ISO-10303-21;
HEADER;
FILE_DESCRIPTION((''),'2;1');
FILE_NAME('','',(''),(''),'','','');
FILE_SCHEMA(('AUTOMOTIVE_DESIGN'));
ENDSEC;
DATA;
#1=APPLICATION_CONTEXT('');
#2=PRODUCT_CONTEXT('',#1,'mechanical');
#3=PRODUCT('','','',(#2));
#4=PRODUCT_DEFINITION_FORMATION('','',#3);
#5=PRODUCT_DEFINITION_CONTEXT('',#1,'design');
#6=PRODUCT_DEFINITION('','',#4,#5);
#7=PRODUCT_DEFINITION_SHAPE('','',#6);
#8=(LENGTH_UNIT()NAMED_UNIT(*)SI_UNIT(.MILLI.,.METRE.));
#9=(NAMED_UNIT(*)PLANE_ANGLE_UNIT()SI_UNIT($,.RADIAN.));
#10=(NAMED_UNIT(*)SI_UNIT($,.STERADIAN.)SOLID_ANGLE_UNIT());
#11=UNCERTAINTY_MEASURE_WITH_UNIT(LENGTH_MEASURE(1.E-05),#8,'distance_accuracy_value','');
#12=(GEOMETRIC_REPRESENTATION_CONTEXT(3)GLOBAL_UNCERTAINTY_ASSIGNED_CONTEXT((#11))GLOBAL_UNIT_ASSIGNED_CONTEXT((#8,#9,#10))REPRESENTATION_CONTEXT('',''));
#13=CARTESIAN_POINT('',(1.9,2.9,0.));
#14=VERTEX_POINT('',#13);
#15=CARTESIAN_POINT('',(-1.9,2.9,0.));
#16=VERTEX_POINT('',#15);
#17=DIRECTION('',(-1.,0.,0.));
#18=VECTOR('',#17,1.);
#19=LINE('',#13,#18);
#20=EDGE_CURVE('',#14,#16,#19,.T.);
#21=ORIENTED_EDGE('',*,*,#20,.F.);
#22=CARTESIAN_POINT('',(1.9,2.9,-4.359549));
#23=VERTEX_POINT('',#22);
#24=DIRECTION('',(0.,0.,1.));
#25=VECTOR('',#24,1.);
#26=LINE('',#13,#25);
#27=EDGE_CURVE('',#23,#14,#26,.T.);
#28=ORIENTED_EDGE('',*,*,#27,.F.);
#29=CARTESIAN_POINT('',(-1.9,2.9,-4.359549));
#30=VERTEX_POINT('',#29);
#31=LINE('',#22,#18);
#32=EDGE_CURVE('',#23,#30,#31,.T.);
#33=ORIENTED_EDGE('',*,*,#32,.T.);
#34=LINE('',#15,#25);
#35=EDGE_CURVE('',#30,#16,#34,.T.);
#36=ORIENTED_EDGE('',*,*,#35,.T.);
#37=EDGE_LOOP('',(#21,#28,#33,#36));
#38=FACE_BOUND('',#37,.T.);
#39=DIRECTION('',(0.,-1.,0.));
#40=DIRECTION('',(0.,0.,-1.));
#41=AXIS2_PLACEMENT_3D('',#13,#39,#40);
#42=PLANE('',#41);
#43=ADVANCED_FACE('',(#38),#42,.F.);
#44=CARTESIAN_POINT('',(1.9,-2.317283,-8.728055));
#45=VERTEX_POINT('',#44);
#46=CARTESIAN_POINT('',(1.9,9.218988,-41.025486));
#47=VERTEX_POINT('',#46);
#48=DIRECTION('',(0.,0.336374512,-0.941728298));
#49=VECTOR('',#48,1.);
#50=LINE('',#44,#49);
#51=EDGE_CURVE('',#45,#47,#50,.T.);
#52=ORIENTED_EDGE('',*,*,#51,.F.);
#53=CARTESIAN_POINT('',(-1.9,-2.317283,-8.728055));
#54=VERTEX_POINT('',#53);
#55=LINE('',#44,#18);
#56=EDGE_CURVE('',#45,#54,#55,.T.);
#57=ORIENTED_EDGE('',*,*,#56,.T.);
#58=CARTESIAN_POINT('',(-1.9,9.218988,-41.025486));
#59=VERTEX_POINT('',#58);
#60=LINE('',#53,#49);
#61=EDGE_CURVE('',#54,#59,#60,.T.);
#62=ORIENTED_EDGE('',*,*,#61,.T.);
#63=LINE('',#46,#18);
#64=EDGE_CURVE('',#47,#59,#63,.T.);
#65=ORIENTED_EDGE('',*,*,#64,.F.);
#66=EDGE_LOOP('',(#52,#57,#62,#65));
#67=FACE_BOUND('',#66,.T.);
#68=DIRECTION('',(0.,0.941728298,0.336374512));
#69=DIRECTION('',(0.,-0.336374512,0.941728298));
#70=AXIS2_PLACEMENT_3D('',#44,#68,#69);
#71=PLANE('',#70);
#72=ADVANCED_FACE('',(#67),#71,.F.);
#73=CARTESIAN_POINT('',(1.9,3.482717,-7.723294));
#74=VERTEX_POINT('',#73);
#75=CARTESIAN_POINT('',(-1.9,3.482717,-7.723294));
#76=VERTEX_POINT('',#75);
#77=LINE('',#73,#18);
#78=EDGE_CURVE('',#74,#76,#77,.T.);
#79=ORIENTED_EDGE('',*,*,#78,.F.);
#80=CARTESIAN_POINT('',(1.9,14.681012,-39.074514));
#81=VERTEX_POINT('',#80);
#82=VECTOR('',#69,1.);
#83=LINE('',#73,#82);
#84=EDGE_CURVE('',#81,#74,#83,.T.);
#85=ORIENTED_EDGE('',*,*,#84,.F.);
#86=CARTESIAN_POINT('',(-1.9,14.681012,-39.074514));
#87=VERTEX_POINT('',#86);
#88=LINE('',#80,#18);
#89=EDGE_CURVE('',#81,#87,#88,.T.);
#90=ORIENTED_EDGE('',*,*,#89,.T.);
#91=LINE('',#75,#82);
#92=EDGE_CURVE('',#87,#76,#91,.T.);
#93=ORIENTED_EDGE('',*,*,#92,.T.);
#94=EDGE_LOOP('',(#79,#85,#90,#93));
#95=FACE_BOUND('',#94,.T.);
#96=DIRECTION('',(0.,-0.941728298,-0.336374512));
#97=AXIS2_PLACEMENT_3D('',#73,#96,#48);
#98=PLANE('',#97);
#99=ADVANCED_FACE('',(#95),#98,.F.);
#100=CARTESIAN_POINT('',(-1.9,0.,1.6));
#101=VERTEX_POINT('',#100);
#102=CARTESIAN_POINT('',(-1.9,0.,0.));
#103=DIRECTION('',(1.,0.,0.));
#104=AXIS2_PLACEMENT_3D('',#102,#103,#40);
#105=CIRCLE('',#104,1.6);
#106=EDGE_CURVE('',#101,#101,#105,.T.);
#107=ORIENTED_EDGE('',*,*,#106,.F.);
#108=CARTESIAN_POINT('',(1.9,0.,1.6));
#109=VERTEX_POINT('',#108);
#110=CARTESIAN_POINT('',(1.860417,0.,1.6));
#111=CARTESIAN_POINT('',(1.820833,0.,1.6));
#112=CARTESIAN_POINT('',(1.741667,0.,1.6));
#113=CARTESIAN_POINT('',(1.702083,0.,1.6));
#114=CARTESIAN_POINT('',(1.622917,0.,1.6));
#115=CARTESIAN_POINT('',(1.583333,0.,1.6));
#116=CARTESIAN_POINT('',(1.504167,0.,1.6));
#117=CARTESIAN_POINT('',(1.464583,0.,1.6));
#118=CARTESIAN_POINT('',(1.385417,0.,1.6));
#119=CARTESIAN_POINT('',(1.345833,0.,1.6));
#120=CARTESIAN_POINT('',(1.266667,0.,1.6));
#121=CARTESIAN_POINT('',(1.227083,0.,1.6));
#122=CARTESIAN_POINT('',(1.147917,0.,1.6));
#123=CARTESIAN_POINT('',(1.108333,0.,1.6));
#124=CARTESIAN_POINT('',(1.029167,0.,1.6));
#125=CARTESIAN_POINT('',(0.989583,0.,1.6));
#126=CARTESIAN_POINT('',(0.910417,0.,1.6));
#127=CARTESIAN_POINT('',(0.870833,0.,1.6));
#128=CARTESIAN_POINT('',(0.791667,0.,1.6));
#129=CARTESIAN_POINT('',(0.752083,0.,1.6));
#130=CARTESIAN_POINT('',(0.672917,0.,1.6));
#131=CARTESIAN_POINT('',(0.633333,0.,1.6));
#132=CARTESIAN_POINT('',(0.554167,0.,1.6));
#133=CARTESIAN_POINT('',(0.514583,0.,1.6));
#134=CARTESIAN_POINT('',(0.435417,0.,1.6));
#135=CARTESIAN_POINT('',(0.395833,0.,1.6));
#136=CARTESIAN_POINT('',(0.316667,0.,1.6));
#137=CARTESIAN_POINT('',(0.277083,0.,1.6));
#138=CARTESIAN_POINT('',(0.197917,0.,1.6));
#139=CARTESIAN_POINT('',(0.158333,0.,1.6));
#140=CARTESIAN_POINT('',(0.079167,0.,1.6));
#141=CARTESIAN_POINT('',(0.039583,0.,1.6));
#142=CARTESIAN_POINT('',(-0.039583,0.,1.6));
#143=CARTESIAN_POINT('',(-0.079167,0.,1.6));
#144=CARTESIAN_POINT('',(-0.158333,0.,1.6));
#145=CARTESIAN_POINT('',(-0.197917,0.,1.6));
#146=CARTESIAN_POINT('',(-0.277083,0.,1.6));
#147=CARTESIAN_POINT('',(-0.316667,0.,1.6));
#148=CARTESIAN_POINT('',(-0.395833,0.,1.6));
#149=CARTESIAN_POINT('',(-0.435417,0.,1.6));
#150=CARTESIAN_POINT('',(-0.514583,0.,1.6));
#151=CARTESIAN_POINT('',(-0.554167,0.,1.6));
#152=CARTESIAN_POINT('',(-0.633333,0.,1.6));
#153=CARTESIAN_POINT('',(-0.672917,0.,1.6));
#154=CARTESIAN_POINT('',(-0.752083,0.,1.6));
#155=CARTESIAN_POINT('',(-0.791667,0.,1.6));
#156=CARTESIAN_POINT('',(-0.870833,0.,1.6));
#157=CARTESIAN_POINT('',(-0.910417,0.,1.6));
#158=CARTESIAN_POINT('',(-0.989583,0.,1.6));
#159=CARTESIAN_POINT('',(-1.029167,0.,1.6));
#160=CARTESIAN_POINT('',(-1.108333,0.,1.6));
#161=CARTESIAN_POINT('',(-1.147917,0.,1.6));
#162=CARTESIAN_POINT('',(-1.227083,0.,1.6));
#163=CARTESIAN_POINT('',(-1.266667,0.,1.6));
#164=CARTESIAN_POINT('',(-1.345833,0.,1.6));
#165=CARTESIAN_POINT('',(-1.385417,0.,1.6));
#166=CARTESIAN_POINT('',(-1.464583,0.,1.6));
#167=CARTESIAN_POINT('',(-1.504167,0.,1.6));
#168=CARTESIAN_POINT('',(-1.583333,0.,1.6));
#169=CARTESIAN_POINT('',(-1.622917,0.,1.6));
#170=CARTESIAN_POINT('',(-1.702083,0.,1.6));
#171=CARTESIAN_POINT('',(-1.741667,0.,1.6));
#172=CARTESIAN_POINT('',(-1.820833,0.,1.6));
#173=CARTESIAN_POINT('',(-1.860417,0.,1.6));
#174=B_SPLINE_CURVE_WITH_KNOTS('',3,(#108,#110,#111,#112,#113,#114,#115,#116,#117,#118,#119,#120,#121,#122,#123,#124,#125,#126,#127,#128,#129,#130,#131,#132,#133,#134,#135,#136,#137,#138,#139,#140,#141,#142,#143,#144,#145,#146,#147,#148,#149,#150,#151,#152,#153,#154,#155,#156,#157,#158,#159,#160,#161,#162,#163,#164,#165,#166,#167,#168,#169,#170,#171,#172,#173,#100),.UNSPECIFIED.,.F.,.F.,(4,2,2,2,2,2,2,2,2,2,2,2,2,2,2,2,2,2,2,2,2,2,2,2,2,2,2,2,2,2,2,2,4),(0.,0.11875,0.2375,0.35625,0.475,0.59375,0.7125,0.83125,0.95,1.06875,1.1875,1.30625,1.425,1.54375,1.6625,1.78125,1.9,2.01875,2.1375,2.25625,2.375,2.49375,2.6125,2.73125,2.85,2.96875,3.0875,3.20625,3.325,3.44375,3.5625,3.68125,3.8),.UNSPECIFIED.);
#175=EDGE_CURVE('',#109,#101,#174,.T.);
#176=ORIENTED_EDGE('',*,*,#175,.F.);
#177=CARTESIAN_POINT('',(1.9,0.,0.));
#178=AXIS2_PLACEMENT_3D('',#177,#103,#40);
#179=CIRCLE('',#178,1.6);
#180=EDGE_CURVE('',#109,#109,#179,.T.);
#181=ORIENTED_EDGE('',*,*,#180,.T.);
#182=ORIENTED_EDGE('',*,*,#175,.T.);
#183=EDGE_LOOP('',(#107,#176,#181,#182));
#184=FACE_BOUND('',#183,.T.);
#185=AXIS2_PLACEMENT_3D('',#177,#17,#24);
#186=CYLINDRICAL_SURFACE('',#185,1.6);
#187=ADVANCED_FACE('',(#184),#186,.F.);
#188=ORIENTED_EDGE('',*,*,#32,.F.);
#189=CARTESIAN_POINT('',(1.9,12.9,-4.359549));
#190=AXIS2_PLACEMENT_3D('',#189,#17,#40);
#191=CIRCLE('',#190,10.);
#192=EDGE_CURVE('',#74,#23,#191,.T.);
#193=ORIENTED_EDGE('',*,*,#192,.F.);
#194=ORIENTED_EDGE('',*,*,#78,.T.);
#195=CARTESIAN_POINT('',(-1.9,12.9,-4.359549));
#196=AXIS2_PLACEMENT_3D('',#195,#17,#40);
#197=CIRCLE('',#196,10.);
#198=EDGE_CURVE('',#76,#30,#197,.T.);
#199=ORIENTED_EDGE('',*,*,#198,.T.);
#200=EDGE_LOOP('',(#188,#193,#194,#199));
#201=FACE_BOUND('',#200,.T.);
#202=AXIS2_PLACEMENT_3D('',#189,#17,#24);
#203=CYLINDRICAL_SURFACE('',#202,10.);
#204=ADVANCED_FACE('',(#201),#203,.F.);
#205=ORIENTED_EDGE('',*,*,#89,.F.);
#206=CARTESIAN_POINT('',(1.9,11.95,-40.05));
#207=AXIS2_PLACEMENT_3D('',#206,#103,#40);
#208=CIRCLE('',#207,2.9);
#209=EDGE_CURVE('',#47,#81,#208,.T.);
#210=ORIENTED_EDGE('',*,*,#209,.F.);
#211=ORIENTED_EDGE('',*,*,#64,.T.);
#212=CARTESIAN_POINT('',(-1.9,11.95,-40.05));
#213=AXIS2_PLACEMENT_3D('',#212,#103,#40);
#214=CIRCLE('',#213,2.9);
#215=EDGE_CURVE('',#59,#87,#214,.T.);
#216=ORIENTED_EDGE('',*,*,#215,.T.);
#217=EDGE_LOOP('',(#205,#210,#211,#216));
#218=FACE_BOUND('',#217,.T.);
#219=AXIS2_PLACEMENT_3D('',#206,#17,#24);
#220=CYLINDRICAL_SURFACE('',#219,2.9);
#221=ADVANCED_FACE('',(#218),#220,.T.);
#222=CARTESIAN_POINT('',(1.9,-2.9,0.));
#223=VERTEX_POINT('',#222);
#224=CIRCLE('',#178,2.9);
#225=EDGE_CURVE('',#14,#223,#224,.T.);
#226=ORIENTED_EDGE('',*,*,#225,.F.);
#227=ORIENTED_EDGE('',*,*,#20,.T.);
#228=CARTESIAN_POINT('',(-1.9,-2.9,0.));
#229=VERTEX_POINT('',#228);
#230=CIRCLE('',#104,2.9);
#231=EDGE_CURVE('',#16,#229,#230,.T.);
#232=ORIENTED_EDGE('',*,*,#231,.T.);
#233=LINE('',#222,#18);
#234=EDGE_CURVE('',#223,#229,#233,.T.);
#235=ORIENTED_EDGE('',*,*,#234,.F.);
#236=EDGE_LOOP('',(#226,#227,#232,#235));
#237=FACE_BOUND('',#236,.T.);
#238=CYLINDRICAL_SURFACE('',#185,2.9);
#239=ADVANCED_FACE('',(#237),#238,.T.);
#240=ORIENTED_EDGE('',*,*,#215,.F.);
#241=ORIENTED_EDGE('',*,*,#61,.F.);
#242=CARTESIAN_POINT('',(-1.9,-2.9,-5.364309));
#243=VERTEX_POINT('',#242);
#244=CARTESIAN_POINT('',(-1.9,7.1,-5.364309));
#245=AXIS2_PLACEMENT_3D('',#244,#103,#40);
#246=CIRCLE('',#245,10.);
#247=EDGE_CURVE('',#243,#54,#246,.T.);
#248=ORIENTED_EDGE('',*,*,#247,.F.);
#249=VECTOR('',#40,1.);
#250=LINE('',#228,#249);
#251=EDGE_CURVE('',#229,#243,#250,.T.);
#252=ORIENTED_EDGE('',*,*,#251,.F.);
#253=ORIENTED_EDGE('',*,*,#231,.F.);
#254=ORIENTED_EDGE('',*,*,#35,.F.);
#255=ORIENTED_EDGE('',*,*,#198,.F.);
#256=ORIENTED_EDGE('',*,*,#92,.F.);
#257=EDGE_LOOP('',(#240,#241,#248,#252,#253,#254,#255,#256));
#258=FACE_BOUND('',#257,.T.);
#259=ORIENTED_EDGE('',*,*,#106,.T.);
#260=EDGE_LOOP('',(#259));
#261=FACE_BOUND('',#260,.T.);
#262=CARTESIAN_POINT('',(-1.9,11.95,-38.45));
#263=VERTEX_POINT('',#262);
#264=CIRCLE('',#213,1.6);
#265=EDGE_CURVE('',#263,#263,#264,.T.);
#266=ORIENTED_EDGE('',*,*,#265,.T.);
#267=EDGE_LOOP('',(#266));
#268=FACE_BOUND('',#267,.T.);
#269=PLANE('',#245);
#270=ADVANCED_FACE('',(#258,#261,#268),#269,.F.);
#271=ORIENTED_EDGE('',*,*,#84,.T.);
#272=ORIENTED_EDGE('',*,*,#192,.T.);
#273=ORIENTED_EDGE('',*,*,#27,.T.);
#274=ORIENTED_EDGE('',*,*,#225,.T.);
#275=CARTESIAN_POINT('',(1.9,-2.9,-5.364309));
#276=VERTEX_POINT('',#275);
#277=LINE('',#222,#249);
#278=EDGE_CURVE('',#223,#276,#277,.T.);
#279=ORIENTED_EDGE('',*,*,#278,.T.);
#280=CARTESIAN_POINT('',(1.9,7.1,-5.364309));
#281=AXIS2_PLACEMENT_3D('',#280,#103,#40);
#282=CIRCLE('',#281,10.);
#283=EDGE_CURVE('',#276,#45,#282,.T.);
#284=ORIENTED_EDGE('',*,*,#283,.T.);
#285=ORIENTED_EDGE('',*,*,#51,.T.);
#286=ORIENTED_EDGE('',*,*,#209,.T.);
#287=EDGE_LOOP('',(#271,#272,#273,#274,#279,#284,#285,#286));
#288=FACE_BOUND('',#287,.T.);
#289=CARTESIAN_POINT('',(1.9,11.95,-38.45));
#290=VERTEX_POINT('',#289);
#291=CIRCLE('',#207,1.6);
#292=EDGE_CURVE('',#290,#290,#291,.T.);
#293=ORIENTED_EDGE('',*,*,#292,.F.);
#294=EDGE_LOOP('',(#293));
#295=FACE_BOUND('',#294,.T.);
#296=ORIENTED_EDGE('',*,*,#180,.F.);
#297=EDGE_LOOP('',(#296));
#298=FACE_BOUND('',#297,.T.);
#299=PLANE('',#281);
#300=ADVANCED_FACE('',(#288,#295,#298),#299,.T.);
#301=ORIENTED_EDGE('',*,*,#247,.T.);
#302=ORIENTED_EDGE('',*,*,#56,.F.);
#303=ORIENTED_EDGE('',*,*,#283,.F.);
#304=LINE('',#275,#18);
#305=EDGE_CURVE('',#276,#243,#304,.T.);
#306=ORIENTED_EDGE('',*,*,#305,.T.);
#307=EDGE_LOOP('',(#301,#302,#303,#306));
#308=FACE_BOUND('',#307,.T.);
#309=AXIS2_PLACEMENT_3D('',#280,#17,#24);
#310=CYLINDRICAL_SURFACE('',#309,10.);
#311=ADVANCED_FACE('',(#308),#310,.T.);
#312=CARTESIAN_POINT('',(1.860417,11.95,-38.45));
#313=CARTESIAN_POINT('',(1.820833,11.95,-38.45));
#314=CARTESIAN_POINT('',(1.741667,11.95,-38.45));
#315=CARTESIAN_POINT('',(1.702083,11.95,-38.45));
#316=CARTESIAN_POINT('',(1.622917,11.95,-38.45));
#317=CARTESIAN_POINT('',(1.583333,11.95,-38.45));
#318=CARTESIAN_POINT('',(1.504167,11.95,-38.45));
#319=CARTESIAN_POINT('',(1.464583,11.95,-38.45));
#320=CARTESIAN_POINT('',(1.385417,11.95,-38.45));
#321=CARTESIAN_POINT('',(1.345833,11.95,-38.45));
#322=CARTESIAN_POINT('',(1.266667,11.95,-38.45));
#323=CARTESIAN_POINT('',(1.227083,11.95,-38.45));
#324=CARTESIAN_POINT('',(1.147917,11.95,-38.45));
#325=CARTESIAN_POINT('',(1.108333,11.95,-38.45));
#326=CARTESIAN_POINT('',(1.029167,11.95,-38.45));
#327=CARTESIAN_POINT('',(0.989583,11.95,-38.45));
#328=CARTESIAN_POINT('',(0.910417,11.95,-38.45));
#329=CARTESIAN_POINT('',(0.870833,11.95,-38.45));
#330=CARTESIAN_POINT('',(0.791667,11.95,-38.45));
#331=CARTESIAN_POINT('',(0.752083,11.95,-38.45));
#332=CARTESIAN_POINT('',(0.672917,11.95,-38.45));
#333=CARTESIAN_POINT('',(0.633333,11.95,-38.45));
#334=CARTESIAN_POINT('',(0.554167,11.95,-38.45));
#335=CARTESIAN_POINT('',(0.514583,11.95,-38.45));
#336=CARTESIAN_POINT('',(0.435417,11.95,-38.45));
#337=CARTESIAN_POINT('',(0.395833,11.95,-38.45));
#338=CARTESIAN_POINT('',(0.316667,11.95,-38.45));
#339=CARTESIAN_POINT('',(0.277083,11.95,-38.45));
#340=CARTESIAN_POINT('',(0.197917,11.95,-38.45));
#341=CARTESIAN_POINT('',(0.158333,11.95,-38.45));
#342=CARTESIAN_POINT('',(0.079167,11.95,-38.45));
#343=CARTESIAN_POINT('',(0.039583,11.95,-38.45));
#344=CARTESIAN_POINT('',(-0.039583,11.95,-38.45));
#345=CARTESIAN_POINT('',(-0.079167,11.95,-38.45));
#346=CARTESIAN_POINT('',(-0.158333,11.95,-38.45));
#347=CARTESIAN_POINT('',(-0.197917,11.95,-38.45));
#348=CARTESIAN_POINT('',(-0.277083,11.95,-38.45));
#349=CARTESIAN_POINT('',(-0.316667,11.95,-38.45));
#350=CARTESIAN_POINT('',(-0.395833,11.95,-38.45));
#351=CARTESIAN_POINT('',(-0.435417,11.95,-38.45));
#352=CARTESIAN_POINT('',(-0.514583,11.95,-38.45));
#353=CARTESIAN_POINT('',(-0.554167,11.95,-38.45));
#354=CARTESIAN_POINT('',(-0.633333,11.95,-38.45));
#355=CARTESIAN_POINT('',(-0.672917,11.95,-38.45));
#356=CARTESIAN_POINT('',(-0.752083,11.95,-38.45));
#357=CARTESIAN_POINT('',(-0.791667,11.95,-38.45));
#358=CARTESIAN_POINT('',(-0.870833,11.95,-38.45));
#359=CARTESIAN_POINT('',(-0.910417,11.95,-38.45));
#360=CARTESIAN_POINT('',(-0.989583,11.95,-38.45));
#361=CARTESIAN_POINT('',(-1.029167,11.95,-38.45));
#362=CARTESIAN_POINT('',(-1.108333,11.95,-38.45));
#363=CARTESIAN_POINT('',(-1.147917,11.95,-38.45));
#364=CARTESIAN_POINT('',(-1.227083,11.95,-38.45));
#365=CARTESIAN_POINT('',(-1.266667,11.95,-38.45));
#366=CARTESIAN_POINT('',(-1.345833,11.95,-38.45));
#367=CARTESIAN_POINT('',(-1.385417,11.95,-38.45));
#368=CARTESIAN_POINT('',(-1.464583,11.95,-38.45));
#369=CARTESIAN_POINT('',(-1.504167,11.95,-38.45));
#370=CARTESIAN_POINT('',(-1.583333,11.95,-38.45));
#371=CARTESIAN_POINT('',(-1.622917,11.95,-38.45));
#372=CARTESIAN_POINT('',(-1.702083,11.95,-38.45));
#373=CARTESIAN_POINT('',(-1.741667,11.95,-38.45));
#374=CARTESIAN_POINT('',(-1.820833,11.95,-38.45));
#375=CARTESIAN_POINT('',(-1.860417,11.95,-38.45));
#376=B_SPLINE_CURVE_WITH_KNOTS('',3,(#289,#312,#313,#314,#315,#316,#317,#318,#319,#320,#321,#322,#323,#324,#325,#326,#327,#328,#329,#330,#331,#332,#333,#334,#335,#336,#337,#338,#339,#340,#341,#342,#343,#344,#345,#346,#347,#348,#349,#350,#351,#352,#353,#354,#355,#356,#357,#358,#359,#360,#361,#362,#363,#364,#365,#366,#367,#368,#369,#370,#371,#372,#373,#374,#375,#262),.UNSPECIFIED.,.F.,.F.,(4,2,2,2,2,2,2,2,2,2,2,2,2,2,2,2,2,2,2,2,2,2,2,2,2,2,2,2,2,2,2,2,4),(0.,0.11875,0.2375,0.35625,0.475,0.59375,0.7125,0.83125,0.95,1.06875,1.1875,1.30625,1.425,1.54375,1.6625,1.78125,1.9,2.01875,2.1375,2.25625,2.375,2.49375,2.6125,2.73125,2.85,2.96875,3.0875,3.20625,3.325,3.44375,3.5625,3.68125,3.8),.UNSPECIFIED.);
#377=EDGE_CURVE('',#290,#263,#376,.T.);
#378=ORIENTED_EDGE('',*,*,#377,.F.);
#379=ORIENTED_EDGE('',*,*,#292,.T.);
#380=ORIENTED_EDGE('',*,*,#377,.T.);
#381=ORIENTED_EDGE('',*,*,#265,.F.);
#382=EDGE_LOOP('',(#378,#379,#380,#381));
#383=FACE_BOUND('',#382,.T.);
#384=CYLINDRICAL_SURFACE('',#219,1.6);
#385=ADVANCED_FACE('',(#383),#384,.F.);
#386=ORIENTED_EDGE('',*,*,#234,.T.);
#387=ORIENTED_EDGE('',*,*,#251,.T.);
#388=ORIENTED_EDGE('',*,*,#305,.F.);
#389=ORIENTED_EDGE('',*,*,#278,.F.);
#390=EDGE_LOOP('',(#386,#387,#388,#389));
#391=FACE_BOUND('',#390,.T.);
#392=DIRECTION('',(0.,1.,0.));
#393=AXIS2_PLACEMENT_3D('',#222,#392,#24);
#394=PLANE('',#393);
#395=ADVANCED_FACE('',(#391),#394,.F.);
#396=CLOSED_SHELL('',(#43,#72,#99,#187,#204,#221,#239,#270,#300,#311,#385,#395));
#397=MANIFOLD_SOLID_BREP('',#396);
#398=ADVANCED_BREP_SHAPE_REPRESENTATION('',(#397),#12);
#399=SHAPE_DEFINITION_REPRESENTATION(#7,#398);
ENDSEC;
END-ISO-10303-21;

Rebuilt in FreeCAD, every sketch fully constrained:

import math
import FreeCAD as App
import Part
import Sketcher
from FreeCAD import Vector
Q = App.Units.Quantity

doc = App.newDocument("Part")
body = doc.addObject("PartDesign::Body", "Body")

# Sketch on YZ plane
sketch1 = body.newObject("Sketcher::SketchObject", "Sketch")
sketch1.AttachmentSupport = (doc.getObject("YZ_Plane"), [""])
sketch1.MapMode = "FlatFace"
sketch1.addGeometry([
    Part.LineSegment(Vector(2.9, -4.4, 0), Vector(2.9, 0, 0)),  # 0
    Part.ArcOfCircle(Part.Circle(Vector(0, 0, 0), Vector(0, 0, 1), 2.9), math.radians(0), math.radians(180)),  # 1
    Part.LineSegment(Vector(-2.9, 0, 0), Vector(-2.9, -5.4, 0)),  # 2
    Part.ArcOfCircle(Part.Circle(Vector(7.1, -5.4, 0), Vector(0, 0, 1), 10), math.radians(-180), math.radians(-160.34)),  # 3
    Part.LineSegment(Vector(-2.3, -8.7, 0), Vector(9.2, -41, 0)),  # 4
    Part.ArcOfCircle(Part.Circle(Vector(11.9, -40, 0), Vector(0, 0, 1), 2.9), math.radians(-160), math.radians(20)),  # 5
    Part.LineSegment(Vector(14.7, -39.1, 0), Vector(3.5, -7.7, 0)),  # 6
    Part.ArcOfCircle(Part.Circle(Vector(12.9, -4.4, 0), Vector(0, 0, 1), 10), math.radians(-180), math.radians(-160.34)),  # 7
    Part.Circle(Vector(0, 0, 0), Vector(0, 0, 1), 1.6),  # 8
    Part.Circle(Vector(11.9, -40, 0), Vector(0, 0, 1), 1.6),  # 9
], False)
sketch1.addConstraint([
    Sketcher.Constraint("Tangent", 0, 2, 1, 1),
    Sketcher.Constraint("Tangent", 1, 2, 2, 1),
    Sketcher.Constraint("Tangent", 2, 2, 3, 1),
    Sketcher.Constraint("Tangent", 3, 2, 4, 1),
    Sketcher.Constraint("Tangent", 4, 2, 5, 1),
    Sketcher.Constraint("Tangent", 5, 2, 6, 1),
    Sketcher.Constraint("Tangent", 6, 2, 7, 2),
    Sketcher.Constraint("Tangent", 7, 1, 0, 1),
    Sketcher.Constraint("Vertical", 0),
    Sketcher.Constraint("Vertical", 2),
    Sketcher.Constraint("Coincident", 1, 3, -1, 1),
    Sketcher.Constraint("Coincident", 8, 3, -1, 1),
    Sketcher.Constraint("Coincident", 9, 3, 5, 3),
    Sketcher.Constraint("Equal", 1, 5),
    Sketcher.Constraint("Equal", 3, 7),
    Sketcher.Constraint("Equal", 8, 9),
    Sketcher.Constraint("Parallel", 4, 6),
    Sketcher.Constraint("Radius", 3, Q("10 mm")),
    Sketcher.Constraint("Diameter", 8, Q("3.2 mm")),
    Sketcher.Constraint("Radius", 1, Q("2.9 mm")),
    Sketcher.Constraint("DistanceX", -1, 1, 5, 3, Q("11.95 mm")),
    Sketcher.Constraint("DistanceY", 5, 3, -1, 1, Q("40.05 mm")),
    Sketcher.Constraint("DistanceY", 0, 1, 0, 2, Q("4.359549 mm")),
])
pad1 = body.newObject("PartDesign::Pad", "Pad")
pad1.Profile = sketch1
pad1.Length = 3.8
pad1.Midplane = True

doc.recompute()
